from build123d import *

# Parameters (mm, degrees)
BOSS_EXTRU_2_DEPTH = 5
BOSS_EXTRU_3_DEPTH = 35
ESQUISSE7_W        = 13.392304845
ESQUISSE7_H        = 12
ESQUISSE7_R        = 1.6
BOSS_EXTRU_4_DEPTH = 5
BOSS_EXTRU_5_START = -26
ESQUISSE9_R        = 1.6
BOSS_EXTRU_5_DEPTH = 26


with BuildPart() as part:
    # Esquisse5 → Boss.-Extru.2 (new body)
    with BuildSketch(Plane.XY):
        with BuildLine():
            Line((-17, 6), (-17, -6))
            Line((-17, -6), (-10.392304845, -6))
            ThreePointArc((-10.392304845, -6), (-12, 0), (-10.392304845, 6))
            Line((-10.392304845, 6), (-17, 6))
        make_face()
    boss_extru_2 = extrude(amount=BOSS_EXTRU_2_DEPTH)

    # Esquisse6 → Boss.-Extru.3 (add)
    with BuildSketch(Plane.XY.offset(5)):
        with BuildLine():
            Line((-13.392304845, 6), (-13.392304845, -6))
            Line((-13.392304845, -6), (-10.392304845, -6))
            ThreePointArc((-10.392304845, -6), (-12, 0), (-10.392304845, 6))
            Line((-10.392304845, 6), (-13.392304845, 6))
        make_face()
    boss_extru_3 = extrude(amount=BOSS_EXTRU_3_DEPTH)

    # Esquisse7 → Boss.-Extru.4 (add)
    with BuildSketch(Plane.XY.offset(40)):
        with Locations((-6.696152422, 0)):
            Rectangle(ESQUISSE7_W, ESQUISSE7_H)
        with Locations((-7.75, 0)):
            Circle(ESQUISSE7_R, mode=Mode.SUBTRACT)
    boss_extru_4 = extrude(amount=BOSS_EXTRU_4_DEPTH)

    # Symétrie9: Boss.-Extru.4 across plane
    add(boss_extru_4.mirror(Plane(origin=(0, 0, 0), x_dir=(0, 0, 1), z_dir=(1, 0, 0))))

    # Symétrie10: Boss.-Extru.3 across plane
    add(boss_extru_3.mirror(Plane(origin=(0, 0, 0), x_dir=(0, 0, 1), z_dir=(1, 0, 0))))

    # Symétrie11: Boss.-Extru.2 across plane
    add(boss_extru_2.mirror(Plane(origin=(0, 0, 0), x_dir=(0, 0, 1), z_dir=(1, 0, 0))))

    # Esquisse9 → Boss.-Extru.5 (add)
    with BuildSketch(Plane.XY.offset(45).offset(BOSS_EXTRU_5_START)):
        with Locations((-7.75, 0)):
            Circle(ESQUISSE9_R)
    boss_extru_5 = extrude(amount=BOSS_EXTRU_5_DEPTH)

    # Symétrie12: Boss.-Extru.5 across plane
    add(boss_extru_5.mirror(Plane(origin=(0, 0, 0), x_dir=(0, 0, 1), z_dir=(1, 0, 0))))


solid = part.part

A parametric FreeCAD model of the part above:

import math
import FreeCAD as App
import Part
import Sketcher
from FreeCAD import Vector


def add_polygon(sketch, points):
    """Adds a closed chain of lines whose ends are joined by coincident constraints."""
    first, n = sketch.GeometryCount, len(points)
    for a, b in zip(points, points[1:] + points[:1]):
        sketch.addGeometry(Part.LineSegment(App.Vector(*a, 0), App.Vector(*b, 0)), False)
    for i in range(n):
        sketch.addConstraint(Sketcher.Constraint("Coincident", first + i, 2, first + (i + 1) % n, 1))

doc = App.newDocument("Part")
params = doc.addObject("Spreadsheet::Sheet", "Params")
for row, (alias, value) in enumerate([
    ("sketch1_radius", "12 mm"),
    ("sketch1_height", "12 mm"),
    ("pad1_length", "5 mm"),
    ("sketch2_radius", "12 mm"),
    ("sketch2_width", "3 mm"),
    ("sketch2_height", "12 mm"),
    ("pad2_length", "35 mm"),
    ("sketch3_diameter", "3.2 mm"),
    ("sketch3_height", "12 mm"),
    ("pad3_length", "5 mm"),
    ("sketch4_diameter", "3.2 mm"),
    ("pad4_length", "26 mm"),
], start=1):
    params.set(f"A{row}", alias)
    params.set(f"B{row}", "=" + value)
    params.setAlias(f"B{row}", alias)

body = doc.addObject("PartDesign::Body", "Body")

sketch1 = doc.addObject("Sketcher::SketchObject", "Sketch")
body.addObject(sketch1)
sketch1.AttachmentSupport = (doc.XY_Plane, [""])
sketch1.MapMode = "FlatFace"
sketch1.addGeometry([
    Part.LineSegment(Vector(-17, 6, 0), Vector(-17, -6, 0)),
    Part.LineSegment(Vector(-17, -6, 0), Vector(-10.392305, -6, 0)),
    Part.ArcOfCircle(Part.Circle(Vector(0, 0, 0), Vector(0, 0, 1), 12), math.radians(150), math.radians(210)),
    Part.LineSegment(Vector(-10.392305, 6, 0), Vector(-17, 6, 0)),
], False)
sketch1.addConstraint([
    Sketcher.Constraint("Coincident", 0, 2, 1, 1),
    Sketcher.Constraint("Coincident", 1, 2, 2, 2),
    Sketcher.Constraint("Coincident", 2, 1, 3, 1),
    Sketcher.Constraint("Coincident", 3, 2, 0, 1),
    Sketcher.Constraint("Vertical", 0),
    Sketcher.Constraint("Horizontal", 1),
    Sketcher.Constraint("Horizontal", 3),
    Sketcher.Constraint("Coincident", 2, 3, -1, 1),
    Sketcher.Constraint("Vertical", 1, 2, 2, 1),
    Sketcher.Constraint("Radius", 2, 12.0),
    Sketcher.Constraint("DistanceY", 0, 2, 0, 1, 12.0),
    Sketcher.Constraint("DistanceX", 0, 2, -1, 1, 17.0),
])
sketch1.setExpression("Constraints[9]", "Params.sketch1_radius")
sketch1.setExpression("Constraints[10]", "Params.sketch1_height")
pad1 = doc.addObject("PartDesign::Pad", "Pad")
body.addObject(pad1)
pad1.Profile = sketch1
pad1.setExpression("Length", "Params.pad1_length")

sketch2 = doc.addObject("Sketcher::SketchObject", "Sketch001")
body.addObject(sketch2)
sketch2.AttachmentSupport = (doc.XY_Plane, [""])
sketch2.MapMode = "FlatFace"
sketch2.AttachmentOffset = App.Placement(Vector(0, 0, 5), App.Rotation())
sketch2.addGeometry([
    Part.LineSegment(Vector(-13.392305, 6, 0), Vector(-13.392305, -6, 0)),
    Part.LineSegment(Vector(-13.392305, -6, 0), Vector(-10.392305, -6, 0)),
    Part.ArcOfCircle(Part.Circle(Vector(0, 0, 0), Vector(0, 0, 1), 12), math.radians(150), math.radians(210)),
    Part.LineSegment(Vector(-10.392305, 6, 0), Vector(-13.392305, 6, 0)),
], False)
sketch2.addConstraint([
    Sketcher.Constraint("Coincident", 0, 2, 1, 1),
    Sketcher.Constraint("Coincident", 1, 2, 2, 2),
    Sketcher.Constraint("Coincident", 2, 1, 3, 1),
    Sketcher.Constraint("Coincident", 3, 2, 0, 1),
    Sketcher.Constraint("Vertical", 0),
    Sketcher.Constraint("Horizontal", 1),
    Sketcher.Constraint("Horizontal", 3),
    Sketcher.Constraint("Coincident", 2, 3, -1, 1),
    Sketcher.Constraint("Vertical", 1, 2, 2, 1),
    Sketcher.Constraint("Radius", 2, 12.0),
    Sketcher.Constraint("DistanceX", 1, 1, 1, 2, 3.0),
    Sketcher.Constraint("DistanceY", 0, 2, 0, 1, 12.0),
])
sketch2.setExpression("Constraints[9]", "Params.sketch2_radius")
sketch2.setExpression("Constraints[10]", "Params.sketch2_width")
sketch2.setExpression("Constraints[11]", "Params.sketch2_height")
pad2 = doc.addObject("PartDesign::Pad", "Pad001")
body.addObject(pad2)
pad2.Profile = sketch2
pad2.setExpression("Length", "Params.pad2_length")

sketch3 = doc.addObject("Sketcher::SketchObject", "Sketch002")
body.addObject(sketch3)
sketch3.AttachmentSupport = (doc.XY_Plane, [""])
sketch3.MapMode = "FlatFace"
sketch3.AttachmentOffset = App.Placement(Vector(0, 0, 40), App.Rotation())
add_polygon(sketch3, [(-13.392305, 6), (-13.392305, -6), (0, -6), (0, 6)])
sketch3.addGeometry(Part.Circle(Vector(-7.75, 0, 0), Vector(0, 0, 1), 1.6), False)
sketch3.addConstraint([
    Sketcher.Constraint("Vertical", 0),
    Sketcher.Constraint("Horizontal", 1),
    Sketcher.Constraint("Vertical", 2),
    Sketcher.Constraint("Horizontal", 3),
    Sketcher.Constraint("Symmetric", 1, 2, 2, 2, -1, 1),
    Sketcher.Constraint("PointOnObject", 4, 3, -1),
    Sketcher.Constraint("Diameter", 4, 3.2),
    Sketcher.Constraint("DistanceY", 0, 2, 0, 1, 12.0),
    Sketcher.Constraint("DistanceX", 4, 3, -1, 1, 7.75),
    Sketcher.Constraint("DistanceX", 1, 1, 1, 2, 13.392305),
])
sketch3.setExpression("Constraints[10]", "Params.sketch3_diameter")
sketch3.setExpression("Constraints[11]", "Params.sketch3_height")
pad3 = doc.addObject("PartDesign::Pad", "Pad002")
body.addObject(pad3)
pad3.Profile = sketch3
pad3.setExpression("Length", "Params.pad3_length")
doc.recompute()

mirrored = doc.addObject("PartDesign::Mirrored", "Mirrored")
body.addObject(mirrored)
mirrored.Originals = [pad3]
mirrored.MirrorPlane = (doc.YZ_Plane, [""])
body.Tip = mirrored
doc.recompute()

mirrored2 = doc.addObject("PartDesign::Mirrored", "Mirrored001")
body.addObject(mirrored2)
mirrored2.Originals = [pad2]
mirrored2.MirrorPlane = (doc.YZ_Plane, [""])
body.Tip = mirrored2
doc.recompute()

mirrored3 = doc.addObject("PartDesign::Mirrored", "Mirrored002")
body.addObject(mirrored3)
mirrored3.Originals = [pad1]
mirrored3.MirrorPlane = (doc.YZ_Plane, [""])
body.Tip = mirrored3

sketch4 = doc.addObject("Sketcher::SketchObject", "Sketch003")
body.addObject(sketch4)
sketch4.AttachmentSupport = (doc.XY_Plane, [""])
sketch4.MapMode = "FlatFace"
sketch4.AttachmentOffset = App.Placement(Vector(0, 0, 19), App.Rotation())
sketch4.addGeometry(Part.Circle(Vector(-7.75, 0, 0), Vector(0, 0, 1), 1.6), False)
sketch4.addConstraint([
    Sketcher.Constraint("PointOnObject", 0, 3, -1),
    Sketcher.Constraint("Diameter", 0, 3.2),
    Sketcher.Constraint("DistanceX", 0, 3, -1, 1, 7.75),
])
sketch4.setExpression("Constraints[1]", "Params.sketch4_diameter")
pad4 = doc.addObject("PartDesign::Pad", "Pad003")
body.addObject(pad4)
pad4.Profile = sketch4
pad4.setExpression("Length", "Params.pad4_length")
doc.recompute()

mirrored4 = doc.addObject("PartDesign::Mirrored", "Mirrored003")
body.addObject(mirrored4)
mirrored4.Originals = [pad4]
mirrored4.MirrorPlane = (doc.YZ_Plane, [""])
body.Tip = mirrored4

doc.recompute()
